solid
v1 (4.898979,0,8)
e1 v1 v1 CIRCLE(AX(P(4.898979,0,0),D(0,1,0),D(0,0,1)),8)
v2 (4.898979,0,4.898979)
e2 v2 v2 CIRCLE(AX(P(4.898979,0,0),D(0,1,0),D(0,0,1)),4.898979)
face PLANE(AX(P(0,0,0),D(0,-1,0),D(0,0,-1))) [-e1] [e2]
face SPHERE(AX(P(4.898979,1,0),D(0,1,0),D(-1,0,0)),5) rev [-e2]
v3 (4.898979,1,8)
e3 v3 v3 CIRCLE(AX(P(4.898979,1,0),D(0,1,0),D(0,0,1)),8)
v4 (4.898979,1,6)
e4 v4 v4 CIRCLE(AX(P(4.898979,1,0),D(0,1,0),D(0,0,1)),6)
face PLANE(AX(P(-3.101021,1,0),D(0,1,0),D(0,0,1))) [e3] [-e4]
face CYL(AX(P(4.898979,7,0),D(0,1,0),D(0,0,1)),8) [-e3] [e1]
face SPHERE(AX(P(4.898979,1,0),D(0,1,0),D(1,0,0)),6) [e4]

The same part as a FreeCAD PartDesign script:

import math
import FreeCAD as App
import Part
import Sketcher
from FreeCAD import Vector
Q = App.Units.Quantity

doc = App.newDocument("Part")
body = doc.addObject("PartDesign::Body", "Body")

# Sketch on XY plane
sketch1 = body.newObject("Sketcher::SketchObject", "Sketch")
sketch1.AttachmentSupport = (doc.getObject("XY_Plane"), [""])
sketch1.MapMode = "FlatFace"
sketch1.addGeometry(Part.LineSegment(Vector(-3.1, 0, 0), Vector(0, 0, 0)), False)
sketch1.addGeometry(Part.ArcOfCircle(Part.Circle(Vector(4.9, 1, 0), Vector(0, 0, 1), 5), math.radians(90), math.radians(192)), False)
sketch1.addGeometry(Part.LineSegment(Vector(4.9, 6, 0), Vector(4.9, 7, 0)), False)
sketch1.addGeometry(Part.ArcOfCircle(Part.Circle(Vector(4.9, 1, 0), Vector(0, 0, 1), 6), math.radians(90), math.radians(180)), False)
sketch1.addGeometry(Part.LineSegment(Vector(-1.1, 1, 0), Vector(-3.1, 1, 0)), False)
sketch1.addGeometry(Part.LineSegment(Vector(-3.1, 1, 0), Vector(-3.1, 0, 0)), False)
sketch1.addGeometry(Part.LineSegment(Vector(4.9, 7, 0), Vector(4.9, 0, 0)), True)  # axis
sketch1.addConstraint(Sketcher.Constraint("Coincident", 0, 2, 1, 2))
sketch1.addConstraint(Sketcher.Constraint("Coincident", 1, 1, 2, 1))
sketch1.addConstraint(Sketcher.Constraint("Coincident", 2, 2, 3, 1))
sketch1.addConstraint(Sketcher.Constraint("Coincident", 3, 2, 4, 1))
sketch1.addConstraint(Sketcher.Constraint("Coincident", 4, 2, 5, 1))
sketch1.addConstraint(Sketcher.Constraint("Coincident", 5, 2, 0, 1))
sketch1.addConstraint(Sketcher.Constraint("Horizontal", 0))
sketch1.addConstraint(Sketcher.Constraint("Vertical", 2))
sketch1.addConstraint(Sketcher.Constraint("Horizontal", 4))
sketch1.addConstraint(Sketcher.Constraint("Vertical", 5))
sketch1.addConstraint(Sketcher.Constraint("Vertical", 6))
sketch1.addConstraint(Sketcher.Constraint("Coincident", 0, 2, -1, 1))
sketch1.addConstraint(Sketcher.Constraint("Coincident", 3, 3, 1, 3))
sketch1.addConstraint(Sketcher.Constraint("Coincident", 6, 1, 2, 2))
sketch1.addConstraint(Sketcher.Constraint("PointOnObject", 6, 2, -1))
sketch1.addConstraint(Sketcher.Constraint("Horizontal", 1, 3, 3, 2))
sketch1.addConstraint(Sketcher.Constraint("Vertical", 3, 3, 1, 1))
sketch1.addConstraint(Sketcher.Constraint("Equal", 2, 5))
sketch1.addConstraint(Sketcher.Constraint("Radius", 1, Q("5 mm")))
sketch1.addConstraint(Sketcher.Constraint("Radius", 3, Q("6 mm")))
sketch1.addConstraint(Sketcher.Constraint("DistanceX", 4, 2, 4, 1, Q("2 mm")))
revolution = body.newObject("PartDesign::Revolution", "Revolution")
revolution.Profile = sketch1
revolution.ReferenceAxis = (sketch1, ["Axis0"])
revolution.Angle = 360

doc.recompute()
